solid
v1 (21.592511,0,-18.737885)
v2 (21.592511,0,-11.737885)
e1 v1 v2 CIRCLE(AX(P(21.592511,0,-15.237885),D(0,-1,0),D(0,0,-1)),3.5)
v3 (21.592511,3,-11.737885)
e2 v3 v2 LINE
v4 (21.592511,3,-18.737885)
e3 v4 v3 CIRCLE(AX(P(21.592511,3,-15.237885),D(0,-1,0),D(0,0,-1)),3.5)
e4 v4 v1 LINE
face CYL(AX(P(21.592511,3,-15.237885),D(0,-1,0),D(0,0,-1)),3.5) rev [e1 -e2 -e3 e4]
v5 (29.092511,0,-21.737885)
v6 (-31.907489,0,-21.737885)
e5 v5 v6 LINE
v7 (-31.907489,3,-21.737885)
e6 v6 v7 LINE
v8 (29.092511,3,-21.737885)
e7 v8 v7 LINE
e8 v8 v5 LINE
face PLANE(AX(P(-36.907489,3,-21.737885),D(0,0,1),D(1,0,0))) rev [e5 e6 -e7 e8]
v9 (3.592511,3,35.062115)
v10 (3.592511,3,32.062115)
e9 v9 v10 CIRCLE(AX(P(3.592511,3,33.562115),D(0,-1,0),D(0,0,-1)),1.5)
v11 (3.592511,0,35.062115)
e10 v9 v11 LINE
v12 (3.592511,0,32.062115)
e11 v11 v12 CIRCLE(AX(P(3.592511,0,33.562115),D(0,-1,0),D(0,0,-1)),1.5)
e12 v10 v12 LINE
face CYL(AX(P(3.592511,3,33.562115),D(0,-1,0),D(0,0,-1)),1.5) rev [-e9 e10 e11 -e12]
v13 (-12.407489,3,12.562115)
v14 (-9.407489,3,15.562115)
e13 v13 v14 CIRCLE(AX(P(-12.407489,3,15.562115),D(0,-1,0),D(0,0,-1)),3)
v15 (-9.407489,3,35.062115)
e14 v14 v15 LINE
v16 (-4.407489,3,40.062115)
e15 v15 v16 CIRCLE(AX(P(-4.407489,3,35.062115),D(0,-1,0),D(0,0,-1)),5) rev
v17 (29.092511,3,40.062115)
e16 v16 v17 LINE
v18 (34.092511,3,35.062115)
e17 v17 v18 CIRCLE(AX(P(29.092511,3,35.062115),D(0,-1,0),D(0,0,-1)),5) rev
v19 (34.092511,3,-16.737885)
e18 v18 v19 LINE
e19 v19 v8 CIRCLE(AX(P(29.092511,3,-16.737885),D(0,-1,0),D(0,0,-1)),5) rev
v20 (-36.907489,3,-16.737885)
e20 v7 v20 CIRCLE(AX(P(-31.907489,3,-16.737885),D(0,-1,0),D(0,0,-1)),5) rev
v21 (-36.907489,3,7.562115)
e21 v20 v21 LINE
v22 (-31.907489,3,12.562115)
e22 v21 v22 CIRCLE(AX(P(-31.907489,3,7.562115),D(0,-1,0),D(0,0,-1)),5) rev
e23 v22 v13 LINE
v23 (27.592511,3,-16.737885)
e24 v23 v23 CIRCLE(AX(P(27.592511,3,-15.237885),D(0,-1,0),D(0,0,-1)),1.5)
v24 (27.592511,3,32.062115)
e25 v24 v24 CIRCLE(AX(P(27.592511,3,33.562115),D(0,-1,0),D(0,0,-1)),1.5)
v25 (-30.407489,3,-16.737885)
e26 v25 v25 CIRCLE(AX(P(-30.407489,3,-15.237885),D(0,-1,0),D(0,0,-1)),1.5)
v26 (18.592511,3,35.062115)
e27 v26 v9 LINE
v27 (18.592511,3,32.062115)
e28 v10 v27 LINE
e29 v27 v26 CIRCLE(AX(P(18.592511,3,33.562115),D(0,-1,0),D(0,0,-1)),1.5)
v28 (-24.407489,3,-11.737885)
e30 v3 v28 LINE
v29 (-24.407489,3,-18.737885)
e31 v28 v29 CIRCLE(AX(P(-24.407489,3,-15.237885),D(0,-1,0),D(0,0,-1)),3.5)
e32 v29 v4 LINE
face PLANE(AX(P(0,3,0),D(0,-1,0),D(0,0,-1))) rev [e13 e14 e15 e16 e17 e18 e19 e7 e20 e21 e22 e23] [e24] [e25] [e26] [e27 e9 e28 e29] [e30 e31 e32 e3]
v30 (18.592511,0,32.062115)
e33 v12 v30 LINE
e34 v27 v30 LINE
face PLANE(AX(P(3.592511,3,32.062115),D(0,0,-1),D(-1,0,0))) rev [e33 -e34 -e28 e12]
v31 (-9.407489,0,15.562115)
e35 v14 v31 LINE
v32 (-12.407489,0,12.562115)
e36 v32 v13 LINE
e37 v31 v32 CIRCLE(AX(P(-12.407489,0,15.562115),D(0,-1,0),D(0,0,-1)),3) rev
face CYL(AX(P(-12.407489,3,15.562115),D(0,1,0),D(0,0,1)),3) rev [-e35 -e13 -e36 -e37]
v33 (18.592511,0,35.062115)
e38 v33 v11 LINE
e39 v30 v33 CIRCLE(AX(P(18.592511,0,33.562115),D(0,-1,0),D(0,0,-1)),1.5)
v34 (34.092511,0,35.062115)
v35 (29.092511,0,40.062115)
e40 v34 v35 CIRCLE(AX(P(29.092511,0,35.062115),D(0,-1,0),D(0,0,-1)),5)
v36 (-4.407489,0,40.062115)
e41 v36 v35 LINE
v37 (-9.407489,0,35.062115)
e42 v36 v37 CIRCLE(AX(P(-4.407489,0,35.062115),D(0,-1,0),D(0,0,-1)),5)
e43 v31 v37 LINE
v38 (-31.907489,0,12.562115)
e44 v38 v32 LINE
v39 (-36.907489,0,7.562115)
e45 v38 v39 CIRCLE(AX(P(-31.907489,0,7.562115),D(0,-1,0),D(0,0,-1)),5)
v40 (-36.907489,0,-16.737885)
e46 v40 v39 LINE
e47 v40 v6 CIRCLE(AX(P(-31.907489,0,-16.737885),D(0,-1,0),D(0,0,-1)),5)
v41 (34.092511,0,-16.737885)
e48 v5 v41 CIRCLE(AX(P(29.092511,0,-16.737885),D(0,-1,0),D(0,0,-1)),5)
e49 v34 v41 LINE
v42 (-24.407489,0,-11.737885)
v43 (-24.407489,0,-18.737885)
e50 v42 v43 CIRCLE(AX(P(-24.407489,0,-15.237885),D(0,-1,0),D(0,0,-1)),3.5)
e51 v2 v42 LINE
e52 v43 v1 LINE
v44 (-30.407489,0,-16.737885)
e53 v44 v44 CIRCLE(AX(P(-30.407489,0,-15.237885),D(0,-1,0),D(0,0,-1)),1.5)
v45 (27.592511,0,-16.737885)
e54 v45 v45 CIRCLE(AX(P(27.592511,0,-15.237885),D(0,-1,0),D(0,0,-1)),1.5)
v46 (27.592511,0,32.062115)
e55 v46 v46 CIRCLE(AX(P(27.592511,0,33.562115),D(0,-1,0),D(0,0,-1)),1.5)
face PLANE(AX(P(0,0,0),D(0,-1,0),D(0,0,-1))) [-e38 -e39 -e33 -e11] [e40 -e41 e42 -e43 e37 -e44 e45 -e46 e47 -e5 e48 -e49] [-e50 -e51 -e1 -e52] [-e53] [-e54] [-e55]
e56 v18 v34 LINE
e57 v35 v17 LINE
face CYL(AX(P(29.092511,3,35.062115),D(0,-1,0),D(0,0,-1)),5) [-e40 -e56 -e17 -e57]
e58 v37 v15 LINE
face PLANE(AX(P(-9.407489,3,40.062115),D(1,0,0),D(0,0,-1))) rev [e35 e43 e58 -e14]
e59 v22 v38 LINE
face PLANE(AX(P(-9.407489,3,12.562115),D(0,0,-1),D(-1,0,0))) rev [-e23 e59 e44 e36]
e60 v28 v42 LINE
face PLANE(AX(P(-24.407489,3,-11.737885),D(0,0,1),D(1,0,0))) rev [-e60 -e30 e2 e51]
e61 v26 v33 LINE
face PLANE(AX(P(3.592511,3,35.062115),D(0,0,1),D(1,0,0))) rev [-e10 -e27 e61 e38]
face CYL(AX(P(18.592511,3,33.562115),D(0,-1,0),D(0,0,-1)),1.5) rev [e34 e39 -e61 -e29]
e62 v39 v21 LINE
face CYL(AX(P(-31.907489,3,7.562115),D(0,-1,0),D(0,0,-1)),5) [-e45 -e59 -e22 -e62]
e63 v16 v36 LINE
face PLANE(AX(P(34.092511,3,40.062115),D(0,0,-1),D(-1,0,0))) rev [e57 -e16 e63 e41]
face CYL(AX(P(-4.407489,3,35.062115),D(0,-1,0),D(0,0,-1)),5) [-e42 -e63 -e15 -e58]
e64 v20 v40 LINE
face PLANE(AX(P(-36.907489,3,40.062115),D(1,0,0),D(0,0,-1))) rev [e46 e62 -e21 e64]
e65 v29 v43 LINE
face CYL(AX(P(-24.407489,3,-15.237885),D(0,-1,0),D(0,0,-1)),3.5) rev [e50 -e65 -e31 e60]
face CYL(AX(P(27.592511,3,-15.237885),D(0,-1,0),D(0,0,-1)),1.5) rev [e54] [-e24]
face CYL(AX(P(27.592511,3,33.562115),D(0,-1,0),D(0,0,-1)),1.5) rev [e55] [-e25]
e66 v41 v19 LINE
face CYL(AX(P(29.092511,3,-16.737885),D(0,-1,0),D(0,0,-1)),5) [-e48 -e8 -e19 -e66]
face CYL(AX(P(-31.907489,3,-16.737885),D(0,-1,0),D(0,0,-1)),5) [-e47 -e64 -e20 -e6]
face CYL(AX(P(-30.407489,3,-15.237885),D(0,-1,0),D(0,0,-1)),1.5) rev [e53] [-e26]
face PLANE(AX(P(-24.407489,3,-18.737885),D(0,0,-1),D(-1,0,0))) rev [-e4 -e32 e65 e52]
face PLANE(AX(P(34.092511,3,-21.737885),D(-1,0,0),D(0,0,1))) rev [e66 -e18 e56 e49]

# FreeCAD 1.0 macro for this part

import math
import FreeCAD as App
import Part
import Sketcher
from FreeCAD import Vector


def edges_at(feature, points):
    """Names of the edges that pass closest to the given points."""
    edges = feature.Shape.Edges
    near = lambda p: min(range(len(edges)), key=lambda i: edges[i].distToShape(Part.Vertex(*p))[0])
    return sorted({f"Edge{near(p) + 1}" for p in points})

doc = App.newDocument("Part")
body = doc.addObject("PartDesign::Body", "Body")

# Sketch on XZ plane
sketch1 = doc.addObject("Sketcher::SketchObject", "Sketch")
body.addObject(sketch1)
sketch1.AttachmentSupport = (doc.XZ_Plane, [""])
sketch1.MapMode = "FlatFace"
sketch1.addGeometry(Part.LineSegment(Vector(-37, -22, 0), Vector(-37, 40, 0)), False)
sketch1.addGeometry(Part.LineSegment(Vector(-37, 40, 0), Vector(34, 40, 0)), False)
sketch1.addGeometry(Part.LineSegment(Vector(34, 40, 0), Vector(34, -22, 0)), False)
sketch1.addGeometry(Part.LineSegment(Vector(34, -22, 0), Vector(-37, -22, 0)), False)
sketch1.addConstraint(Sketcher.Constraint("Coincident", 0, 2, 1, 1))
sketch1.addConstraint(Sketcher.Constraint("Coincident", 1, 2, 2, 1))
sketch1.addConstraint(Sketcher.Constraint("Coincident", 2, 2, 3, 1))
sketch1.addConstraint(Sketcher.Constraint("Coincident", 3, 2, 0, 1))
sketch1.addConstraint(Sketcher.Constraint("Vertical", 0))
sketch1.addConstraint(Sketcher.Constraint("Horizontal", 1))
sketch1.addConstraint(Sketcher.Constraint("Vertical", 2))
sketch1.addConstraint(Sketcher.Constraint("Horizontal", 3))
sketch1.addConstraint(Sketcher.Constraint("DistanceX", 1, 1, 1, 2, 71.0))
sketch1.addConstraint(Sketcher.Constraint("DistanceY", 0, 1, 0, 2, 61.8))
sketch1.addConstraint(Sketcher.Constraint("DistanceX", 0, 2, -1, 1, 36.907489))
sketch1.addConstraint(Sketcher.Constraint("DistanceY", -1, 1, 0, 2, 40.062115))
pad1 = doc.addObject("PartDesign::Pad", "Pad")
body.addObject(pad1)
pad1.Profile = sketch1
pad1.Length = 3
pad1.Reversed = True
doc.recompute()

fillet = doc.addObject("PartDesign::Fillet", "Fillet")
body.addObject(fillet)
fillet.Base = (pad1, edges_at(pad1, [(-36.907, 1.5, -21.738)]))
fillet.Radius = 5
doc.recompute()

fillet2 = doc.addObject("PartDesign::Fillet", "Fillet001")
body.addObject(fillet2)
fillet2.Base = (fillet, edges_at(fillet, [(34.093, 1.5, 40.062)]))
fillet2.Radius = 5
doc.recompute()

fillet3 = doc.addObject("PartDesign::Fillet", "Fillet002")
body.addObject(fillet3)
fillet3.Base = (fillet2, edges_at(fillet2, [(34.093, 1.5, -21.738)]))
fillet3.Radius = 5

# Sketch on XZ plane
sketch2 = doc.addObject("Sketcher::SketchObject", "Sketch001")
body.addObject(sketch2)
sketch2.AttachmentSupport = (doc.XZ_Plane, [""])
sketch2.MapMode = "FlatFace"
sketch2.addGeometry(Part.Circle(Vector(-30.4, -15.2, 0), Vector(0, 0, 1), 1.5), False)
sketch2.addGeometry(Part.Circle(Vector(27.6, 33.6, 0), Vector(0, 0, 1), 1.5), False)
sketch2.addGeometry(Part.Circle(Vector(27.6, -15.2, 0), Vector(0, 0, 1), 1.5), False)
sketch2.addConstraint(Sketcher.Constraint("Equal", 0, 1))
sketch2.addConstraint(Sketcher.Constraint("Equal", 1, 2))
sketch2.addConstraint(Sketcher.Constraint("Horizontal", 0, 3, 2, 3))
sketch2.addConstraint(Sketcher.Constraint("Vertical", 1, 3, 2, 3))
sketch2.addConstraint(Sketcher.Constraint("Diameter", 0, 3.0))
sketch2.addConstraint(Sketcher.Constraint("DistanceX", 0, 3, 1, 3, 58.0))
sketch2.addConstraint(Sketcher.Constraint("DistanceY", 0, 3, 1, 3, 48.8))
sketch2.addConstraint(Sketcher.Constraint("DistanceX", 0, 3, -1, 1, 30.407489))
sketch2.addConstraint(Sketcher.Constraint("DistanceY", 0, 3, -1, 1, 15.237885))
pocket1 = doc.addObject("PartDesign::Pocket", "Pocket")
body.addObject(pocket1)
pocket1.Profile = sketch2
pocket1.Type = "ThroughAll"

# Sketch on XZ plane
sketch3 = doc.addObject("Sketcher::SketchObject", "Sketch002")
body.addObject(sketch3)
sketch3.AttachmentSupport = (doc.XZ_Plane, [""])
sketch3.MapMode = "FlatFace"
sketch3.addGeometry(Part.LineSegment(Vector(21.6, -11.7, 0), Vector(-24.4, -11.7, 0)), False)
sketch3.addGeometry(Part.ArcOfCircle(Part.Circle(Vector(-24.4, -15.2, 0), Vector(0, 0, 1), 3.5), math.radians(90), math.radians(270)), False)
sketch3.addGeometry(Part.LineSegment(Vector(-24.4, -18.7, 0), Vector(21.6, -18.7, 0)), False)
sketch3.addGeometry(Part.ArcOfCircle(Part.Circle(Vector(21.6, -15.2, 0), Vector(0, 0, 1), 3.5), math.radians(-90), math.radians(90)), False)
sketch3.addConstraint(Sketcher.Constraint("Tangent", 0, 2, 1, 1))
sketch3.addConstraint(Sketcher.Constraint("Tangent", 1, 2, 2, 1))
sketch3.addConstraint(Sketcher.Constraint("Tangent", 2, 2, 3, 1))
sketch3.addConstraint(Sketcher.Constraint("Tangent", 3, 2, 0, 1))
sketch3.addConstraint(Sketcher.Constraint("Horizontal", 0))
sketch3.addConstraint(Sketcher.Constraint("Horizontal", 2))
sketch3.addConstraint(Sketcher.Constraint("Radius", 1, 3.5))
sketch3.addConstraint(Sketcher.Constraint("DistanceX", 0, 2, 0, 1, 46.0))
sketch3.addConstraint(Sketcher.Constraint("DistanceX", 1, 3, -1, 1, 24.407489))
sketch3.addConstraint(Sketcher.Constraint("DistanceY", 1, 3, -1, 1, 15.237885))
pocket2 = doc.addObject("PartDesign::Pocket", "Pocket001")
body.addObject(pocket2)
pocket2.Profile = sketch3
pocket2.Type = "ThroughAll"

# Sketch on XZ plane
sketch4 = doc.addObject("Sketcher::SketchObject", "Sketch003")
body.addObject(sketch4)
sketch4.AttachmentSupport = (doc.XZ_Plane, [""])
sketch4.MapMode = "FlatFace"
sketch4.addGeometry(Part.LineSegment(Vector(-37, 40, 0), Vector(-37, 13, 0)), False)
sketch4.addGeometry(Part.LineSegment(Vector(-37, 13, 0), Vector(-9, 13, 0)), False)
sketch4.addGeometry(Part.LineSegment(Vector(-9, 13, 0), Vector(-9, 40, 0)), False)
sketch4.addGeometry(Part.LineSegment(Vector(-9, 40, 0), Vector(-37, 40, 0)), False)
sketch4.addConstraint(Sketcher.Constraint("Coincident", 0, 2, 1, 1))
sketch4.addConstraint(Sketcher.Constraint("Coincident", 1, 2, 2, 1))
sketch4.addConstraint(Sketcher.Constraint("Coincident", 2, 2, 3, 1))
sketch4.addConstraint(Sketcher.Constraint("Coincident", 3, 2, 0, 1))
sketch4.addConstraint(Sketcher.Constraint("Vertical", 0))
sketch4.addConstraint(Sketcher.Constraint("Horizontal", 1))
sketch4.addConstraint(Sketcher.Constraint("Vertical", 2))
sketch4.addConstraint(Sketcher.Constraint("Horizontal", 3))
sketch4.addConstraint(Sketcher.Constraint("Equal", 3, 0))
sketch4.addConstraint(Sketcher.Constraint("DistanceX", 1, 1, 1, 2, 27.5))
sketch4.addConstraint(Sketcher.Constraint("DistanceX", 0, 2, -1, 1, 36.907489))
sketch4.addConstraint(Sketcher.Constraint("DistanceY", -1, 1, 0, 2, 12.562115))
pocket3 = doc.addObject("PartDesign::Pocket", "Pocket002")
body.addObject(pocket3)
pocket3.Profile = sketch4
pocket3.Type = "ThroughAll"
doc.recompute()

fillet4 = doc.addObject("PartDesign::Fillet", "Fillet003")
body.addObject(fillet4)
fillet4.Base = (pocket3, edges_at(pocket3, [(-36.907, 1.5, 12.562), (-9.407, 1.5, 40.062)]))
fillet4.Radius = 5
doc.recompute()

fillet5 = doc.addObject("PartDesign::Fillet", "Fillet004")
body.addObject(fillet5)
fillet5.Base = (fillet4, edges_at(fillet4, [(-9.407, 1.5, 12.562)]))
fillet5.Radius = 3

# Sketch on XZ plane
sketch5 = doc.addObject("Sketcher::SketchObject", "Sketch004")
body.addObject(sketch5)
sketch5.AttachmentSupport = (doc.XZ_Plane, [""])
sketch5.MapMode = "FlatFace"
sketch5.addGeometry(Part.LineSegment(Vector(18.6, 35.1, 0), Vector(3.6, 35.1, 0)), False)
sketch5.addGeometry(Part.ArcOfCircle(Part.Circle(Vector(3.6, 33.6, 0), Vector(0, 0, 1), 1.5), math.radians(90), math.radians(270)), False)
sketch5.addGeometry(Part.LineSegment(Vector(3.6, 32.1, 0), Vector(18.6, 32.1, 0)), False)
sketch5.addGeometry(Part.ArcOfCircle(Part.Circle(Vector(18.6, 33.6, 0), Vector(0, 0, 1), 1.5), math.radians(-90), math.radians(90)), False)
sketch5.addConstraint(Sketcher.Constraint("Tangent", 0, 2, 1, 1))
sketch5.addConstraint(Sketcher.Constraint("Tangent", 1, 2, 2, 1))
sketch5.addConstraint(Sketcher.Constraint("Tangent", 2, 2, 3, 1))
sketch5.addConstraint(Sketcher.Constraint("Tangent", 3, 2, 0, 1))
sketch5.addConstraint(Sketcher.Constraint("Horizontal", 0))
sketch5.addConstraint(Sketcher.Constraint("Horizontal", 2))
sketch5.addConstraint(Sketcher.Constraint("Radius", 1, 1.5))
sketch5.addConstraint(Sketcher.Constraint("DistanceX", 0, 2, 0, 1, 15.0))
sketch5.addConstraint(Sketcher.Constraint("DistanceX", -1, 1, 1, 3, 3.592511))
sketch5.addConstraint(Sketcher.Constraint("DistanceY", -1, 1, 1, 3, 33.562115))
pocket4 = doc.addObject("PartDesign::Pocket", "Pocket003")
body.addObject(pocket4)
pocket4.Profile = sketch5
pocket4.Type = "ThroughAll"

doc.recompute()
